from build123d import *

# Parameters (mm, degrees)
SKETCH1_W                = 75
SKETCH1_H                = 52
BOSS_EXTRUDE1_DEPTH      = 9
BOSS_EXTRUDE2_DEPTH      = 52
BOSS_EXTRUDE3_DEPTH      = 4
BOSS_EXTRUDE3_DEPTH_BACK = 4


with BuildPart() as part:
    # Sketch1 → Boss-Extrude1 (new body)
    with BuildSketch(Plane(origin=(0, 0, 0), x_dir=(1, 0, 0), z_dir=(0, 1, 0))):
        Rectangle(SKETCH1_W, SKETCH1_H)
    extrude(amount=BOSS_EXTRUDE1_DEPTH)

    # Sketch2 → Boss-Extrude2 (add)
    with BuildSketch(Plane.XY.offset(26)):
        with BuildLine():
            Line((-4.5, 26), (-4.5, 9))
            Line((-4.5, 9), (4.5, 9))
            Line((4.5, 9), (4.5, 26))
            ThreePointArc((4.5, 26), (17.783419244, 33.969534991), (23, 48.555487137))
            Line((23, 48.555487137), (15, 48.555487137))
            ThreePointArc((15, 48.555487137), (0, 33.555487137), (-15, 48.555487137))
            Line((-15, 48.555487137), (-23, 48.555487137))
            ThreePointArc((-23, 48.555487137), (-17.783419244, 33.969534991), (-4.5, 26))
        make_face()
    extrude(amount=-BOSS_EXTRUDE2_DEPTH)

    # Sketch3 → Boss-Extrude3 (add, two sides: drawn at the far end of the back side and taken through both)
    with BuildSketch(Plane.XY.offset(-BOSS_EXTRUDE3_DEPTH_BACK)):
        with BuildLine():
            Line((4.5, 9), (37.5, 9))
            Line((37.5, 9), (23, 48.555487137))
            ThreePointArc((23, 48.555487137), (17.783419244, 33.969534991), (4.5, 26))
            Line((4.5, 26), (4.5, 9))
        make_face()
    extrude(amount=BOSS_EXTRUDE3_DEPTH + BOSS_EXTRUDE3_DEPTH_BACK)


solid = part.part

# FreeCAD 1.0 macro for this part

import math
import FreeCAD as App
import Part
import Sketcher
from FreeCAD import Vector


def add_polygon(sketch, points):
    """Adds a closed chain of lines whose ends are joined by coincident constraints."""
    first, n = sketch.GeometryCount, len(points)
    for a, b in zip(points, points[1:] + points[:1]):
        sketch.addGeometry(Part.LineSegment(App.Vector(*a, 0), App.Vector(*b, 0)), False)
    for i in range(n):
        sketch.addConstraint(Sketcher.Constraint("Coincident", first + i, 2, first + (i + 1) % n, 1))

doc = App.newDocument("Part")
body = doc.addObject("PartDesign::Body", "Body")

sketch1 = body.newObject("Sketcher::SketchObject", "Sketch")
sketch1.AttachmentSupport = (doc.getObject("XZ_Plane"), [""])
sketch1.MapMode = "FlatFace"
add_polygon(sketch1, [(-38, -26), (-38, 26), (38, 26), (38, -26)])
sketch1.addConstraint(Sketcher.Constraint("Vertical", 0))
sketch1.addConstraint(Sketcher.Constraint("Horizontal", 1))
sketch1.addConstraint(Sketcher.Constraint("Vertical", 2))
sketch1.addConstraint(Sketcher.Constraint("Horizontal", 3))
sketch1.addConstraint(Sketcher.Constraint("Symmetric", 0, 2, 2, 2, -1, 1))
sketch1.addConstraint(Sketcher.Constraint("DistanceX", 1, 1, 1, 2, 75.0))
sketch1.addConstraint(Sketcher.Constraint("DistanceY", 0, 1, 0, 2, 52.0))
pad1 = body.newObject("PartDesign::Pad", "Pad")
pad1.Profile = sketch1
pad1.Length = 9
pad1.Reversed = True

sketch2 = body.newObject("Sketcher::SketchObject", "Sketch001")
sketch2.AttachmentSupport = (doc.getObject("XY_Plane"), [""])
sketch2.MapMode = "FlatFace"
sketch2.AttachmentOffset = App.Placement(Vector(0, 0, 26), App.Rotation())
sketch2.addGeometry(Part.LineSegment(Vector(-4, 26, 0), Vector(-4, 9, 0)), False)
sketch2.addGeometry(Part.LineSegment(Vector(-4, 9, 0), Vector(4, 9, 0)), False)
sketch2.addGeometry(Part.LineSegment(Vector(4, 9, 0), Vector(4, 26, 0)), False)
sketch2.addGeometry(Part.ArcOfCircle(Part.Circle(Vector(0, 49, 0), Vector(0, 0, 1), 23), math.radians(-79), math.radians(0)), False)
sketch2.addGeometry(Part.LineSegment(Vector(23, 49, 0), Vector(15, 49, 0)), False)
sketch2.addGeometry(Part.ArcOfCircle(Part.Circle(Vector(0, 49, 0), Vector(0, 0, 1), 15), math.radians(180), math.radians(360)), False)
sketch2.addGeometry(Part.LineSegment(Vector(-15, 49, 0), Vector(-23, 49, 0)), False)
sketch2.addGeometry(Part.ArcOfCircle(Part.Circle(Vector(0, 49, 0), Vector(0, 0, 1), 23), math.radians(180), math.radians(259)), False)
sketch2.addConstraint(Sketcher.Constraint("Coincident", 0, 2, 1, 1))
sketch2.addConstraint(Sketcher.Constraint("Coincident", 1, 2, 2, 1))
sketch2.addConstraint(Sketcher.Constraint("Coincident", 2, 2, 3, 1))
sketch2.addConstraint(Sketcher.Constraint("Coincident", 3, 2, 4, 1))
sketch2.addConstraint(Sketcher.Constraint("Coincident", 4, 2, 5, 2))
sketch2.addConstraint(Sketcher.Constraint("Coincident", 5, 1, 6, 1))
sketch2.addConstraint(Sketcher.Constraint("Coincident", 6, 2, 7, 1))
sketch2.addConstraint(Sketcher.Constraint("Coincident", 7, 2, 0, 1))
sketch2.addConstraint(Sketcher.Constraint("Vertical", 0))
sketch2.addConstraint(Sketcher.Constraint("Horizontal", 1))
sketch2.addConstraint(Sketcher.Constraint("Vertical", 2))
sketch2.addConstraint(Sketcher.Constraint("Horizontal", 4))
sketch2.addConstraint(Sketcher.Constraint("Horizontal", 6))
sketch2.addConstraint(Sketcher.Constraint("Coincident", 5, 3, 3, 3))
sketch2.addConstraint(Sketcher.Constraint("Coincident", 7, 3, 3, 3))
sketch2.addConstraint(Sketcher.Constraint("Equal", 3, 7))
sketch2.addConstraint(Sketcher.Constraint("Symmetric", 4, 2, 5, 1, -2))
sketch2.addConstraint(Sketcher.Constraint("Horizontal", 7, 3, 3, 2))
sketch2.addConstraint(Sketcher.Constraint("Horizontal", 2, 2, 7, 2))
sketch2.addConstraint(Sketcher.Constraint("Radius", 3, 23.0))
sketch2.addConstraint(Sketcher.Constraint("Radius", 5, 15.0))
sketch2.addConstraint(Sketcher.Constraint("DistanceX", 1, 1, 1, 2, 9.0))
sketch2.addConstraint(Sketcher.Constraint("DistanceY", 0, 2, 0, 1, 17.0))
sketch2.addConstraint(Sketcher.Constraint("DistanceY", -1, 1, 0, 2, 9.0))
pad2 = body.newObject("PartDesign::Pad", "Pad001")
pad2.Profile = sketch2
pad2.Length = 52
pad2.Reversed = True

sketch3 = body.newObject("Sketcher::SketchObject", "Sketch002")
sketch3.AttachmentSupport = (doc.getObject("XY_Plane"), [""])
sketch3.MapMode = "FlatFace"
sketch3.addGeometry(Part.LineSegment(Vector(4, 9, 0), Vector(38, 9, 0)), False)
sketch3.addGeometry(Part.LineSegment(Vector(38, 9, 0), Vector(23, 49, 0)), False)
sketch3.addGeometry(Part.ArcOfCircle(Part.Circle(Vector(0, 49, 0), Vector(0, 0, 1), 23), math.radians(-79), math.radians(0)), False)
sketch3.addGeometry(Part.LineSegment(Vector(4, 26, 0), Vector(4, 9, 0)), False)
sketch3.addConstraint(Sketcher.Constraint("Coincident", 0, 2, 1, 1))
sketch3.addConstraint(Sketcher.Constraint("Coincident", 1, 2, 2, 2))
sketch3.addConstraint(Sketcher.Constraint("Coincident", 2, 1, 3, 1))
sketch3.addConstraint(Sketcher.Constraint("Coincident", 3, 2, 0, 1))
sketch3.addConstraint(Sketcher.Constraint("Horizontal", 0))
sketch3.addConstraint(Sketcher.Constraint("Vertical", 3))
sketch3.addConstraint(Sketcher.Constraint("PointOnObject", 2, 3, -2))
sketch3.addConstraint(Sketcher.Constraint("Horizontal", 2, 3, 1, 2))
sketch3.addConstraint(Sketcher.Constraint("Radius", 2, 23.0))
sketch3.addConstraint(Sketcher.Constraint("DistanceX", 0, 1, 0, 2, 33.0))
sketch3.addConstraint(Sketcher.Constraint("DistanceY", 3, 2, 3, 1, 17.0))
sketch3.addConstraint(Sketcher.Constraint("DistanceY", -1, 1, 0, 2, 9.0))
sketch3.addConstraint(Sketcher.Constraint("DistanceX", -1, 1, 0, 2, 37.5))
pad3 = body.newObject("PartDesign::Pad", "Pad002")
pad3.Profile = sketch3
pad3.Type = "TwoLengths"
pad3.Length = 4
pad3.Length2 = 4

doc.recompute()
